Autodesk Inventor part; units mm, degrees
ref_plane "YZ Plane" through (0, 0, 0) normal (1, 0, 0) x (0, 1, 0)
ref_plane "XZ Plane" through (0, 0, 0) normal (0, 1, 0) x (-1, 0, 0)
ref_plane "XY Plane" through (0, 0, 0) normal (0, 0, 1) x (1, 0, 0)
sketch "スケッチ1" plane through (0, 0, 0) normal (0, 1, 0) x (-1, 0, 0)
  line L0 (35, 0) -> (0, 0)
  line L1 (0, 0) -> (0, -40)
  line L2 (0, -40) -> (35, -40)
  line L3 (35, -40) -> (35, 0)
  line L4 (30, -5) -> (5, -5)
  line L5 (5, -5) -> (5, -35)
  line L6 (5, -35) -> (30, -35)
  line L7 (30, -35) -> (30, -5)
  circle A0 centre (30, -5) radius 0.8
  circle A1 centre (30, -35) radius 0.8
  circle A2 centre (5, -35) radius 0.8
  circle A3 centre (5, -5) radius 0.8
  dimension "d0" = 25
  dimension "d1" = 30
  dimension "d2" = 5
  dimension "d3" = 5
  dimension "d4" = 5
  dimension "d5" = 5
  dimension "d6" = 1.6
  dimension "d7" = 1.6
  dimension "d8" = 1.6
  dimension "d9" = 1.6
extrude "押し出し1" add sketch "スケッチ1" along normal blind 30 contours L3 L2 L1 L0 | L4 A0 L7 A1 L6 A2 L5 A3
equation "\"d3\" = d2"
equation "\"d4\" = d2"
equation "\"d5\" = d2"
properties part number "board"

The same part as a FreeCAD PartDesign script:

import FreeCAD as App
import Part
import Sketcher


def add_polygon(sketch, points):
    """Adds a closed chain of lines whose ends are joined by coincident constraints."""
    first, n = sketch.GeometryCount, len(points)
    for a, b in zip(points, points[1:] + points[:1]):
        sketch.addGeometry(Part.LineSegment(App.Vector(*a, 0), App.Vector(*b, 0)), False)
    for i in range(n):
        sketch.addConstraint(Sketcher.Constraint("Coincident", first + i, 2, first + (i + 1) % n, 1))

doc = App.newDocument("Part")
body = doc.addObject("PartDesign::Body", "Body")

# Sketch on XZ plane
sketch1 = doc.addObject("Sketcher::SketchObject", "Sketch")
body.addObject(sketch1)
sketch1.AttachmentSupport = (doc.XZ_Plane, [""])
sketch1.MapMode = "FlatFace"
add_polygon(sketch1, [(-35, -40), (-35, 0), (0, 0), (0, -40)])  # lines 0-3
sketch1.addGeometry(Part.Circle(App.Vector(-5, -5, 0), App.Vector(0, 0, 1), 0.8), False)  # 4
sketch1.addGeometry(Part.Circle(App.Vector(-5, -35, 0), App.Vector(0, 0, 1), 0.8), False)  # 5
sketch1.addGeometry(Part.Circle(App.Vector(-30, -35, 0), App.Vector(0, 0, 1), 0.8), False)  # 6
sketch1.addGeometry(Part.Circle(App.Vector(-30, -5, 0), App.Vector(0, 0, 1), 0.8), False)  # 7
sketch1.addConstraint(Sketcher.Constraint("Vertical", 0))
sketch1.addConstraint(Sketcher.Constraint("Horizontal", 1))
sketch1.addConstraint(Sketcher.Constraint("Vertical", 2))
sketch1.addConstraint(Sketcher.Constraint("Horizontal", 3))
sketch1.addConstraint(Sketcher.Constraint("Coincident", 1, 2, -1, 1))
sketch1.addConstraint(Sketcher.Constraint("Equal", 4, 5))
sketch1.addConstraint(Sketcher.Constraint("Equal", 5, 6))
sketch1.addConstraint(Sketcher.Constraint("Equal", 6, 7))
sketch1.addConstraint(Sketcher.Constraint("Horizontal", 5, 3, 6, 3))
sketch1.addConstraint(Sketcher.Constraint("Horizontal", 4, 3, 7, 3))
sketch1.addConstraint(Sketcher.Constraint("Vertical", 4, 3, 5, 3))
sketch1.addConstraint(Sketcher.Constraint("Vertical", 6, 3, 7, 3))
sketch1.addConstraint(Sketcher.Constraint("Diameter", 4, 1.6))
sketch1.addConstraint(Sketcher.Constraint("DistanceX", 4, 3, -1, 1, 5.0))
sketch1.addConstraint(Sketcher.Constraint("DistanceY", 4, 3, -1, 1, 5.0))
sketch1.addConstraint(Sketcher.Constraint("DistanceX", 6, 3, -1, 1, 30.0))
sketch1.addConstraint(Sketcher.Constraint("DistanceY", 5, 3, 4, 3, 30.0))
sketch1.addConstraint(Sketcher.Constraint("DistanceX", 0, 2, 7, 3, 5.0))
sketch1.addConstraint(Sketcher.Constraint("DistanceY", 2, 2, 5, 3, 5.0))
pad1 = doc.addObject("PartDesign::Pad", "Pad")
body.addObject(pad1)
pad1.Profile = sketch1
pad1.Length = 30
pad1.Reversed = True

doc.recompute()
